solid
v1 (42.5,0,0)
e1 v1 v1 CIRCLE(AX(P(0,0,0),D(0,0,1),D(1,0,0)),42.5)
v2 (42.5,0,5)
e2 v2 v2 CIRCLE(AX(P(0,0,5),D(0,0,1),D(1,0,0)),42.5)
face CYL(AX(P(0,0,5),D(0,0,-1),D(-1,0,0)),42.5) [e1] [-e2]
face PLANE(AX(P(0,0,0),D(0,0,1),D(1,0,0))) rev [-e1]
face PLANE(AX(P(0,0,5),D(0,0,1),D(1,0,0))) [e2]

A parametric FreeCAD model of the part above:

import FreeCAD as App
import Part
import Sketcher
from FreeCAD import Vector
Q = App.Units.Quantity

doc = App.newDocument("Part")
body = doc.addObject("PartDesign::Body", "Body")

# Sketch on XY plane
sketch1 = body.newObject("Sketcher::SketchObject", "Sketch")
sketch1.AttachmentSupport = (doc.getObject("XY_Plane"), [""])
sketch1.MapMode = "FlatFace"
sketch1.addGeometry(Part.Circle(Vector(0, 0, 0), Vector(0, 0, 1), 42), False)
sketch1.addConstraint([
    Sketcher.Constraint("Coincident", 0, 3, -1, 1),
    Sketcher.Constraint("Diameter", 0, Q("85 mm")),
])
pad1 = body.newObject("PartDesign::Pad", "Pad")
pad1.Profile = sketch1
pad1.Length = 5

doc.recompute()
